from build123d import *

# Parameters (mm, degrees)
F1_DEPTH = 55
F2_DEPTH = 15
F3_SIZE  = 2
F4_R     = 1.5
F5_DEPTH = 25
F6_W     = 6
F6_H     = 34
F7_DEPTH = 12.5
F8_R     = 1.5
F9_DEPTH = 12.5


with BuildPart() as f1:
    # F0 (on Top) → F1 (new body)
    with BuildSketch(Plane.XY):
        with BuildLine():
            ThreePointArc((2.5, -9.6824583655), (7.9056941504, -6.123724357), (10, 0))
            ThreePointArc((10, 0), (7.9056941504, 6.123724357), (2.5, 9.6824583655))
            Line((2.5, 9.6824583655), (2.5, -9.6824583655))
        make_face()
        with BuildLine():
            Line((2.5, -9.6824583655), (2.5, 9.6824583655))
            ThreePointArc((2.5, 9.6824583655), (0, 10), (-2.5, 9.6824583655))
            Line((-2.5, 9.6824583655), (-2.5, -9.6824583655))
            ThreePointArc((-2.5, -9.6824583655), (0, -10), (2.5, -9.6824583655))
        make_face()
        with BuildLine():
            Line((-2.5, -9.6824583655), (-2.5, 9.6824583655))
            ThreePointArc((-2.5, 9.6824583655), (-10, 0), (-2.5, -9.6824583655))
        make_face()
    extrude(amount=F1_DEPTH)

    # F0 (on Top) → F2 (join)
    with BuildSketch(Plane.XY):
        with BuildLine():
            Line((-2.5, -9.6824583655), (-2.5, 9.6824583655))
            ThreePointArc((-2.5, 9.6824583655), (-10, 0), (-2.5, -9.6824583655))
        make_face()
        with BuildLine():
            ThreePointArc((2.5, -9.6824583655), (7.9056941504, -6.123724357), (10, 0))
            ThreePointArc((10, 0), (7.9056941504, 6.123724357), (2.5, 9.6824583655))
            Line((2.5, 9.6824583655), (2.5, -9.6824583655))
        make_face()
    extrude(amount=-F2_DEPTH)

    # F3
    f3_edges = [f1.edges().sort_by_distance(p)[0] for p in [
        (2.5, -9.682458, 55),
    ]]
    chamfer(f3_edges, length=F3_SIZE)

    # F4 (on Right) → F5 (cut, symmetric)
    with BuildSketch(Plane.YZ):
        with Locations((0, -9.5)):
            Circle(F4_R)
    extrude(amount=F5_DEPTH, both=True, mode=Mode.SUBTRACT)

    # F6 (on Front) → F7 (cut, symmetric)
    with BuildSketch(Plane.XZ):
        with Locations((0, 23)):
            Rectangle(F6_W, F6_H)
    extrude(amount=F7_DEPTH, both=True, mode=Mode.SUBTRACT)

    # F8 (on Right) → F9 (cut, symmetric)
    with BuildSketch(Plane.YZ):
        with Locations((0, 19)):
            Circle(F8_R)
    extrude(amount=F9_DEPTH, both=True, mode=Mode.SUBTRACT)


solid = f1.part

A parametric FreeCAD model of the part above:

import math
import FreeCAD as App
import Part
import Sketcher

V = App.Vector
Q = App.Units.Quantity


def edges_at(feature, points):
    """Names of the edges that pass closest to the given points."""
    edges = feature.Shape.Edges
    near = lambda p: min(range(len(edges)), key=lambda i: edges[i].distToShape(Part.Vertex(*p))[0])
    return sorted({f"Edge{near(p) + 1}" for p in points})


def add_polygon(sketch, points):
    """Adds a closed chain of lines whose ends are joined by coincident constraints."""
    first, n = sketch.GeometryCount, len(points)
    for a, b in zip(points, points[1:] + points[:1]):
        sketch.addGeometry(Part.LineSegment(App.Vector(*a, 0), App.Vector(*b, 0)), False)
    for i in range(n):
        sketch.addConstraint(Sketcher.Constraint("Coincident", first + i, 2, first + (i + 1) % n, 1))

doc = App.newDocument("Part")
body = doc.addObject("PartDesign::Body", "Body")

# Sketch on XY plane
sketch1 = body.newObject("Sketcher::SketchObject", "Sketch")
sketch1.AttachmentSupport = (doc.getObject("XY_Plane"), [""])
sketch1.MapMode = "FlatFace"
sketch1.addGeometry([
    Part.ArcOfCircle(Part.Circle(V(0, 0, 0), V(0, 0, 1), 10), math.radians(-75.522488), math.radians(0)),  # 0
    Part.ArcOfCircle(Part.Circle(V(0, 0, 0), V(0, 0, 1), 10), math.radians(0), math.radians(75.522488)),  # 1
    Part.ArcOfCircle(Part.Circle(V(0, 0, 0), V(0, 0, 1), 10), math.radians(75.522488), math.radians(104.477512)),  # 2
    Part.ArcOfCircle(Part.Circle(V(0, 0, 0), V(0, 0, 1), 10), math.radians(104.477512), math.radians(255.522488)),  # 3
    Part.ArcOfCircle(Part.Circle(V(0, 0, 0), V(0, 0, 1), 10), math.radians(-104.477512), math.radians(-75.522488)),  # 4
], False)
sketch1.addConstraint([
    Sketcher.Constraint("Tangent", 0, 2, 1, 1),
    Sketcher.Constraint("Tangent", 1, 2, 2, 1),
    Sketcher.Constraint("Tangent", 2, 2, 3, 1),
    Sketcher.Constraint("Tangent", 3, 2, 4, 1),
    Sketcher.Constraint("Tangent", 4, 2, 0, 1),
    Sketcher.Constraint("Coincident", 0, 3, -1, 1),
    Sketcher.Constraint("Coincident", 2, 3, -1, 1),
    Sketcher.Constraint("PointOnObject", 0, 2, -1),
    Sketcher.Constraint("Horizontal", 1, 2, 2, 2),
    Sketcher.Constraint("Horizontal", 3, 2, 4, 2),
    Sketcher.Constraint("Vertical", 2, 2, 3, 2),
    Sketcher.Constraint("Radius", 0, Q("10 mm")),
    Sketcher.Constraint("DistanceX", 2, 2, 1, 2, Q("5 mm")),
])
pad1 = body.newObject("PartDesign::Pad", "Pad")
pad1.Profile = sketch1
pad1.Length = 55

# Sketch on XY plane
sketch2 = body.newObject("Sketcher::SketchObject", "Sketch001")
sketch2.AttachmentSupport = (doc.getObject("XY_Plane"), [""])
sketch2.MapMode = "FlatFace"
sketch2.addGeometry([
    Part.LineSegment(V(-2.5, -9.682458, 0), V(-2.5, 9.682458, 0)),  # 0
    Part.ArcOfCircle(Part.Circle(V(0, 0, 0), V(0, 0, 1), 10), math.radians(104.477512), math.radians(255.522488)),  # 1
    Part.ArcOfCircle(Part.Circle(V(0, 0, 0), V(0, 0, 1), 10), math.radians(-75.522488), math.radians(0)),  # 2
    Part.ArcOfCircle(Part.Circle(V(0, 0, 0), V(0, 0, 1), 10), math.radians(0), math.radians(75.522488)),  # 3
    Part.LineSegment(V(2.5, 9.682458, 0), V(2.5, -9.682458, 0)),  # 4
], False)
sketch2.addConstraint([
    Sketcher.Constraint("Coincident", 0, 1, 1, 2),
    Sketcher.Constraint("Coincident", 1, 1, 0, 2),
    Sketcher.Constraint("Tangent", 2, 2, 3, 1),
    Sketcher.Constraint("Coincident", 3, 2, 4, 1),
    Sketcher.Constraint("Coincident", 4, 2, 2, 1),
    Sketcher.Constraint("Vertical", 0),
    Sketcher.Constraint("Vertical", 4),
    Sketcher.Constraint("Coincident", 1, 3, -1, 1),
    Sketcher.Constraint("Coincident", 2, 3, -1, 1),
    Sketcher.Constraint("Equal", 1, 2),
    Sketcher.Constraint("Equal", 2, 3),
    Sketcher.Constraint("PointOnObject", 2, 2, -1),
    Sketcher.Constraint("Horizontal", 1, 1, 3, 2),
    Sketcher.Constraint("Radius", 1, Q("10 mm")),
    Sketcher.Constraint("DistanceX", 1, 1, 3, 2, Q("5 mm")),
])
pad2 = body.newObject("PartDesign::Pad", "Pad001")
pad2.Profile = sketch2
pad2.Length = 15
pad2.Reversed = True
doc.recompute()

chamfer = body.newObject("PartDesign::Chamfer", "Chamfer")
chamfer.Base = (pad2, edges_at(pad2, [(0, -10, 55)]))
chamfer.Size = 2

# Sketch on YZ plane
sketch3 = body.newObject("Sketcher::SketchObject", "Sketch002")
sketch3.AttachmentSupport = (doc.getObject("YZ_Plane"), [""])
sketch3.MapMode = "FlatFace"
sketch3.addGeometry(Part.Circle(V(0, -9.5, 0), V(0, 0, 1), 1.5), False)
sketch3.addConstraint([
    Sketcher.Constraint("PointOnObject", 0, 3, -2),
    Sketcher.Constraint("Diameter", 0, Q("3 mm")),
    Sketcher.Constraint("DistanceY", 0, 3, -1, 1, Q("9.5 mm")),
])
pocket1 = body.newObject("PartDesign::Pocket", "Pocket")
pocket1.Profile = sketch3
pocket1.Length = 50
pocket1.Midplane = True

# Sketch on XZ plane
sketch4 = body.newObject("Sketcher::SketchObject", "Sketch003")
sketch4.AttachmentSupport = (doc.getObject("XZ_Plane"), [""])
sketch4.MapMode = "FlatFace"
add_polygon(sketch4, [(-3, 40), (-3, 6), (3, 6), (3, 40)])  # lines 0-3
sketch4.addConstraint([
    Sketcher.Constraint("Vertical", 0),
    Sketcher.Constraint("Horizontal", 1),
    Sketcher.Constraint("Vertical", 2),
    Sketcher.Constraint("Horizontal", 3),
    Sketcher.Constraint("DistanceX", 1, 1, 1, 2, Q("6 mm")),
    Sketcher.Constraint("DistanceY", 0, 2, 0, 1, Q("34 mm")),
    Sketcher.Constraint("DistanceX", 0, 2, -1, 1, Q("3 mm")),
    Sketcher.Constraint("DistanceY", -1, 1, 0, 2, Q("6 mm")),
])
pocket2 = body.newObject("PartDesign::Pocket", "Pocket001")
pocket2.Profile = sketch4
pocket2.Length = 25
pocket2.Midplane = True

# Sketch on YZ plane
sketch5 = body.newObject("Sketcher::SketchObject", "Sketch004")
sketch5.AttachmentSupport = (doc.getObject("YZ_Plane"), [""])
sketch5.MapMode = "FlatFace"
sketch5.addGeometry(Part.Circle(V(0, 19, 0), V(0, 0, 1), 1.5), False)
sketch5.addConstraint([
    Sketcher.Constraint("PointOnObject", 0, 3, -2),
    Sketcher.Constraint("Diameter", 0, Q("3 mm")),
    Sketcher.Constraint("DistanceY", -1, 1, 0, 3, Q("19 mm")),
])
pocket3 = body.newObject("PartDesign::Pocket", "Pocket002")
pocket3.Profile = sketch5
pocket3.Length = 25
pocket3.Midplane = True

doc.recompute()
